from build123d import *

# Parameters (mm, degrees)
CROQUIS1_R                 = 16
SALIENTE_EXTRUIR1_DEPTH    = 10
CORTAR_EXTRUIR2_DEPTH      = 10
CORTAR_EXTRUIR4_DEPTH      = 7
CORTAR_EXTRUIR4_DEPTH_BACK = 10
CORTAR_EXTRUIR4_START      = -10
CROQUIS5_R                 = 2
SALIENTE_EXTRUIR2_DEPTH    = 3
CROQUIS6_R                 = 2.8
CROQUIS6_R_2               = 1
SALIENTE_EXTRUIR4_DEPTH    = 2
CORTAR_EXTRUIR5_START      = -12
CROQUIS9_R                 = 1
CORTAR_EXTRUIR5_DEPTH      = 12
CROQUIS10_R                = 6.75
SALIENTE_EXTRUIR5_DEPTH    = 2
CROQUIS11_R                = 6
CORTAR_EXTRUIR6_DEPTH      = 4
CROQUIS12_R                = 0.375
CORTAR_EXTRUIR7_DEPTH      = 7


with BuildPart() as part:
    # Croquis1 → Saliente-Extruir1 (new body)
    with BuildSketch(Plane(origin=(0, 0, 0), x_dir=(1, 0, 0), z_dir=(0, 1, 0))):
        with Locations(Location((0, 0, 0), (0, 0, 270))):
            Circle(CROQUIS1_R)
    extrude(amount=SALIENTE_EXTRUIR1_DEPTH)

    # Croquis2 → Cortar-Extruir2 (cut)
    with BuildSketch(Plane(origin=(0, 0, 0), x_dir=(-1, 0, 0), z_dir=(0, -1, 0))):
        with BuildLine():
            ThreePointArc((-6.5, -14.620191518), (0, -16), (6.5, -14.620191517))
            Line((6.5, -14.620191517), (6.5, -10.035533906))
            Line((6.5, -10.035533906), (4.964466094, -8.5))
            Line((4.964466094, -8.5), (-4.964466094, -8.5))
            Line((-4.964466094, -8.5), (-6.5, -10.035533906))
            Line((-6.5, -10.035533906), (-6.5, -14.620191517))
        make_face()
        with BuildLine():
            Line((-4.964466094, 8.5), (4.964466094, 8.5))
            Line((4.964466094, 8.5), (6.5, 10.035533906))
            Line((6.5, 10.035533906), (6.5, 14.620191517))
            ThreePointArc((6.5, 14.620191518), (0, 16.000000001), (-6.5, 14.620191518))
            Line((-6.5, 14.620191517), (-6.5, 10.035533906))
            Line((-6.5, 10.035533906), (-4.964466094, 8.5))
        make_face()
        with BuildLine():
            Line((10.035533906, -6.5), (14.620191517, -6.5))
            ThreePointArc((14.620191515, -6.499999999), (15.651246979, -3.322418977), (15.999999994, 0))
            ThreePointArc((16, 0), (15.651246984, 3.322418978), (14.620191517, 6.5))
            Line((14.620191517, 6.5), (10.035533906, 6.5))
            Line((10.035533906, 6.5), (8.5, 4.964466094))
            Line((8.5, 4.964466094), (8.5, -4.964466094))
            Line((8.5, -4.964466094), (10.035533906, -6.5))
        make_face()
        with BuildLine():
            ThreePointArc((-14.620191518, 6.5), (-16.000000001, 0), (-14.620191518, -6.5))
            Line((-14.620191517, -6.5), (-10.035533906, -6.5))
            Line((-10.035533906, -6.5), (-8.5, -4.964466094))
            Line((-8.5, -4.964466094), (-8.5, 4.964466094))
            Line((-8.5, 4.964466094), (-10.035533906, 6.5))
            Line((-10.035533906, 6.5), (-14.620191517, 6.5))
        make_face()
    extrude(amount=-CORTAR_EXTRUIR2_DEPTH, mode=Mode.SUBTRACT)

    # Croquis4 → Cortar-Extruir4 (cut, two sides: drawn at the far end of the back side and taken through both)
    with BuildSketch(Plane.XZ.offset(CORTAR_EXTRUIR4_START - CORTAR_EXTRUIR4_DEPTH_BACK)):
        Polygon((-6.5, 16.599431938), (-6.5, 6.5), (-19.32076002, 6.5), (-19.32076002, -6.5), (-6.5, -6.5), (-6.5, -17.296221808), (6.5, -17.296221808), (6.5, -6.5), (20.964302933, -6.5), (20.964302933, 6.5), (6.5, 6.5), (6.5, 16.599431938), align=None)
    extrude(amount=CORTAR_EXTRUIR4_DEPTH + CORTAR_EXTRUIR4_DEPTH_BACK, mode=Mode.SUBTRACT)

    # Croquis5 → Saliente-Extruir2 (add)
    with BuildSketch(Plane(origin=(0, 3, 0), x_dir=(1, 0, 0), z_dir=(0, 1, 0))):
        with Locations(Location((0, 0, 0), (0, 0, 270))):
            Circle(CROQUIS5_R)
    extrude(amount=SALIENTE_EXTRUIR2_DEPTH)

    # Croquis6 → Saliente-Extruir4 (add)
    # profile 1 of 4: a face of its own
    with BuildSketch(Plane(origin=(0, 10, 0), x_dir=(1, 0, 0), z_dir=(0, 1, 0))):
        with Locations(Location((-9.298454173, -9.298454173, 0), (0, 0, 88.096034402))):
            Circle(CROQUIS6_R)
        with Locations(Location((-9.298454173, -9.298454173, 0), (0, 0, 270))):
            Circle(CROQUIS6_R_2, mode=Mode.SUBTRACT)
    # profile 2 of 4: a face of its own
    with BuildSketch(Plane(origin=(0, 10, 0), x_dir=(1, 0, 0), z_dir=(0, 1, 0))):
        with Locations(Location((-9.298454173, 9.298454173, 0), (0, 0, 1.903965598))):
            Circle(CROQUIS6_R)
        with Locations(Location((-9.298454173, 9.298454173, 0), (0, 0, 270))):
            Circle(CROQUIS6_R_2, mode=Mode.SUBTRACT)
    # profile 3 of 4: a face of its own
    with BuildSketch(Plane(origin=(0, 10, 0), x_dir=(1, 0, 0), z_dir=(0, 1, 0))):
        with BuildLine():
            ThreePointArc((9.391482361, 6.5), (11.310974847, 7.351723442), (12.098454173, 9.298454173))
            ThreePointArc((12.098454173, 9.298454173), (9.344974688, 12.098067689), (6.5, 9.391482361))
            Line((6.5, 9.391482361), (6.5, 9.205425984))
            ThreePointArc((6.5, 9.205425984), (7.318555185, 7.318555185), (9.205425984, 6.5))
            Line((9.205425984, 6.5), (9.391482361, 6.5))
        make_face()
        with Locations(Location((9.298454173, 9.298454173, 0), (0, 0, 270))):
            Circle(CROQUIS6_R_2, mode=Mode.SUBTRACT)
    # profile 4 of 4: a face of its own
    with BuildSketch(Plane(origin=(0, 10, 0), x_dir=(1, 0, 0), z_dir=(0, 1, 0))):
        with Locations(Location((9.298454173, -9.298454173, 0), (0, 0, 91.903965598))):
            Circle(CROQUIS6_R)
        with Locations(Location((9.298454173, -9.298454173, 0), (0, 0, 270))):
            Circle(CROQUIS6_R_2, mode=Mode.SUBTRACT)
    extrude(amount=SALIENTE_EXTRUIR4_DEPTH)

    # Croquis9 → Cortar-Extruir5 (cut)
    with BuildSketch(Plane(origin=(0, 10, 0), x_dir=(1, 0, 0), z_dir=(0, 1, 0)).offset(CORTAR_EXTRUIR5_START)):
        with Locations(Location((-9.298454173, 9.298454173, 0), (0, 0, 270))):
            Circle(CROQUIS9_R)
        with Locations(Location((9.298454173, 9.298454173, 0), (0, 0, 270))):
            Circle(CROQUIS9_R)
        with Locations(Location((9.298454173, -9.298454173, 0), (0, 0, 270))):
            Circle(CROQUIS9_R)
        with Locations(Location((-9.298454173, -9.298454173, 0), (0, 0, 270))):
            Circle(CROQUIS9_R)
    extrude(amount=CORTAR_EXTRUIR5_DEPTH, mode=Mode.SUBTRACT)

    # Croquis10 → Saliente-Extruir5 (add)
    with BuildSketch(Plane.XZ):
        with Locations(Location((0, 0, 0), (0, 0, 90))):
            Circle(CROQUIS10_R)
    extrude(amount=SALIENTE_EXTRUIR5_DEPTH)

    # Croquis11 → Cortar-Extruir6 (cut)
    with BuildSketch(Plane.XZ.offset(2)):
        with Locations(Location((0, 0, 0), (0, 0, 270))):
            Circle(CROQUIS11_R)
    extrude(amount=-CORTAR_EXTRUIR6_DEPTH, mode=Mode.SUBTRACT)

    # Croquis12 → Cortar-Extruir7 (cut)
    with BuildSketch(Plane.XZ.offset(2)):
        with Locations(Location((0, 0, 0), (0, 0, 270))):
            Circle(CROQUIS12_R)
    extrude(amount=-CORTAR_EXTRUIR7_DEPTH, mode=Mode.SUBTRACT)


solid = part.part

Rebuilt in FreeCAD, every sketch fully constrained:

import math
import FreeCAD as App
import Part
import Sketcher
from FreeCAD import Vector


def add_polygon(sketch, points):
    """Adds a closed chain of lines whose ends are joined by coincident constraints."""
    first, n = sketch.GeometryCount, len(points)
    for a, b in zip(points, points[1:] + points[:1]):
        sketch.addGeometry(Part.LineSegment(App.Vector(*a, 0), App.Vector(*b, 0)), False)
    for i in range(n):
        sketch.addConstraint(Sketcher.Constraint("Coincident", first + i, 2, first + (i + 1) % n, 1))

doc = App.newDocument("Part")
body = doc.addObject("PartDesign::Body", "Body")

sketch1 = body.newObject("Sketcher::SketchObject", "Sketch")
sketch1.AttachmentSupport = (doc.getObject("XZ_Plane"), [""])
sketch1.MapMode = "FlatFace"
sketch1.addGeometry(Part.Circle(Vector(0, 0, 0), Vector(0, 0, 1), 16), False)
sketch1.addConstraint([
    Sketcher.Constraint("Coincident", 0, 3, -1, 1),
    Sketcher.Constraint("Diameter", 0, 32.0),
])
pad1 = body.newObject("PartDesign::Pad", "Pad")
pad1.Profile = sketch1
pad1.Length = 10
pad1.Reversed = True

sketch2 = body.newObject("Sketcher::SketchObject", "Sketch001")
sketch2.AttachmentSupport = (doc.getObject("XZ_Plane"), [""])
sketch2.MapMode = "FlatFace"
sketch2.addGeometry([
    Part.ArcOfCircle(Part.Circle(Vector(0, 0, 0), Vector(0, 0, 1), 16), math.radians(66.030518), math.radians(113.969482)),
    Part.LineSegment(Vector(-6.5, 14.620192, 0), Vector(-6.5, 10.035534, 0)),
    Part.LineSegment(Vector(-6.5, 10.035534, 0), Vector(-4.964466, 8.5, 0)),
    Part.LineSegment(Vector(-4.964466, 8.5, 0), Vector(4.964466, 8.5, 0)),
    Part.LineSegment(Vector(4.964466, 8.5, 0), Vector(6.5, 10.035534, 0)),
    Part.LineSegment(Vector(6.5, 10.035534, 0), Vector(6.5, 14.620192, 0)),
    Part.LineSegment(Vector(4.964466, -8.5, 0), Vector(-4.964466, -8.5, 0)),
    Part.LineSegment(Vector(-4.964466, -8.5, 0), Vector(-6.5, -10.035534, 0)),
    Part.LineSegment(Vector(-6.5, -10.035534, 0), Vector(-6.5, -14.620192, 0)),
    Part.ArcOfCircle(Part.Circle(Vector(0, 0, 0), Vector(0, 0, 1), 16), math.radians(-113.969482), math.radians(-66.030518)),
    Part.LineSegment(Vector(6.5, -14.620192, 0), Vector(6.5, -10.035534, 0)),
    Part.LineSegment(Vector(6.5, -10.035534, 0), Vector(4.964466, -8.5, 0)),
    Part.LineSegment(Vector(-10.035534, 6.5, 0), Vector(-14.620192, 6.5, 0)),
    Part.ArcOfCircle(Part.Circle(Vector(0, 0, 0), Vector(0, 0, 1), 16), math.radians(156.030518), math.radians(180)),
    Part.ArcOfCircle(Part.Circle(Vector(0, 0, 0), Vector(0, 0, 1), 16), math.radians(180), math.radians(203.969482)),
    Part.LineSegment(Vector(-14.620192, -6.5, 0), Vector(-10.035534, -6.5, 0)),
    Part.LineSegment(Vector(-10.035534, -6.5, 0), Vector(-8.5, -4.964466, 0)),
    Part.LineSegment(Vector(-8.5, -4.964466, 0), Vector(-8.5, 4.964466, 0)),
    Part.LineSegment(Vector(-8.5, 4.964466, 0), Vector(-10.035534, 6.5, 0)),
    Part.ArcOfCircle(Part.Circle(Vector(0, 0, 0), Vector(0, 0, 1), 16), math.radians(-23.969482), math.radians(23.969482)),
    Part.LineSegment(Vector(14.620192, 6.5, 0), Vector(10.035534, 6.5, 0)),
    Part.LineSegment(Vector(10.035534, 6.5, 0), Vector(8.5, 4.964466, 0)),
    Part.LineSegment(Vector(8.5, 4.964466, 0), Vector(8.5, -4.964466, 0)),
    Part.LineSegment(Vector(8.5, -4.964466, 0), Vector(10.035534, -6.5, 0)),
    Part.LineSegment(Vector(10.035534, -6.5, 0), Vector(14.620192, -6.5, 0)),
], False)
sketch2.addConstraint([
    Sketcher.Constraint("Coincident", 0, 2, 1, 1),
    Sketcher.Constraint("Coincident", 1, 2, 2, 1),
    Sketcher.Constraint("Coincident", 2, 2, 3, 1),
    Sketcher.Constraint("Coincident", 3, 2, 4, 1),
    Sketcher.Constraint("Coincident", 4, 2, 5, 1),
    Sketcher.Constraint("Coincident", 5, 2, 0, 1),
    Sketcher.Constraint("Coincident", 6, 2, 7, 1),
    Sketcher.Constraint("Coincident", 7, 2, 8, 1),
    Sketcher.Constraint("Coincident", 8, 2, 9, 1),
    Sketcher.Constraint("Coincident", 9, 2, 10, 1),
    Sketcher.Constraint("Coincident", 10, 2, 11, 1),
    Sketcher.Constraint("Coincident", 11, 2, 6, 1),
    Sketcher.Constraint("Coincident", 12, 2, 13, 1),
    Sketcher.Constraint("Tangent", 13, 2, 14, 1),
    Sketcher.Constraint("Coincident", 14, 2, 15, 1),
    Sketcher.Constraint("Coincident", 15, 2, 16, 1),
    Sketcher.Constraint("Coincident", 16, 2, 17, 1),
    Sketcher.Constraint("Coincident", 17, 2, 18, 1),
    Sketcher.Constraint("Coincident", 18, 2, 12, 1),
    Sketcher.Constraint("Coincident", 19, 2, 20, 1),
    Sketcher.Constraint("Coincident", 20, 2, 21, 1),
    Sketcher.Constraint("Coincident", 21, 2, 22, 1),
    Sketcher.Constraint("Coincident", 22, 2, 23, 1),
    Sketcher.Constraint("Coincident", 23, 2, 24, 1),
    Sketcher.Constraint("Coincident", 24, 2, 19, 1),
    Sketcher.Constraint("Vertical", 1),
    Sketcher.Constraint("Horizontal", 3),
    Sketcher.Constraint("Vertical", 5),
    Sketcher.Constraint("Horizontal", 6),
    Sketcher.Constraint("Vertical", 8),
    Sketcher.Constraint("Vertical", 10),
    Sketcher.Constraint("Horizontal", 12),
    Sketcher.Constraint("Horizontal", 15),
    Sketcher.Constraint("Vertical", 17),
    Sketcher.Constraint("Horizontal", 20),
    Sketcher.Constraint("Vertical", 22),
    Sketcher.Constraint("Horizontal", 24),
    Sketcher.Constraint("Coincident", 0, 3, -1, 1),
    Sketcher.Constraint("Coincident", 9, 3, -1, 1),
    Sketcher.Constraint("Coincident", 13, 3, -1, 1),
    Sketcher.Constraint("Coincident", 19, 3, -1, 1),
    Sketcher.Constraint("Equal", 0, 9),
    Sketcher.Constraint("Equal", 9, 13),
    Sketcher.Constraint("Equal", 13, 14),
    Sketcher.Constraint("Equal", 14, 19),
    Sketcher.Constraint("Symmetric", 3, 2, 6, 2, -1, 1),
    Sketcher.Constraint("Symmetric", 4, 2, 7, 2, -1, 1),
    Sketcher.Constraint("Symmetric", 1, 2, 10, 2, -1, 1),
    Sketcher.Constraint("Symmetric", 15, 2, 20, 2, -1, 1),
    Sketcher.Constraint("Symmetric", 16, 2, 21, 2, -1, 1),
    Sketcher.Constraint("Symmetric", 18, 2, 23, 2, -1, 1),
    Sketcher.Constraint("Symmetric", 1, 2, 4, 2, -2),
    Sketcher.Constraint("Symmetric", 18, 2, 20, 2, -2),
    Sketcher.Constraint("PointOnObject", 13, 2, -1),
    Sketcher.Constraint("Perpendicular", 2, 4),
    Sketcher.Constraint("Perpendicular", 7, 11),
    Sketcher.Constraint("Perpendicular", 11, 16),
    Sketcher.Constraint("Perpendicular", 16, 18),
    Sketcher.Constraint("Perpendicular", 21, 23),
    Sketcher.Constraint("Horizontal", 17, 2, 21, 2),
    Sketcher.Constraint("Equal", 24, 1),
    Sketcher.Constraint("Equal", 6, 17),
    Sketcher.Constraint("Equal", 11, 16),
    Sketcher.Constraint("Radius", 0, 16.0),
    Sketcher.Constraint("DistanceX", 0, 2, 5, 2, 13.0),
    Sketcher.Constraint("DistanceY", 12, 2, 2, 2, 2.0),
    Sketcher.Constraint("DistanceX", 3, 1, 3, 2, 9.928932),
])
pocket1 = body.newObject("PartDesign::Pocket", "Pocket")
pocket1.Profile = sketch2
pocket1.Length = 10

sketch3 = body.newObject("Sketcher::SketchObject", "Sketch002")
sketch3.AttachmentSupport = (doc.getObject("XZ_Plane"), [""])
sketch3.MapMode = "FlatFace"
sketch3.AttachmentOffset = App.Placement(Vector(0, 0, -10), App.Rotation())
add_polygon(sketch3, [(-6.5, 16.599432), (-6.5, 6.5), (-19.32076, 6.5), (-19.32076, -6.5), (-6.5, -6.5), (-6.5, -17.296222), (6.5, -17.296222), (6.5, -6.5), (20.964303, -6.5), (20.964303, 6.5), (6.5, 6.5), (6.5, 16.599432)])
sketch3.addConstraint([
    Sketcher.Constraint("Vertical", 0),
    Sketcher.Constraint("Horizontal", 1),
    Sketcher.Constraint("Vertical", 2),
    Sketcher.Constraint("Horizontal", 3),
    Sketcher.Constraint("Vertical", 4),
    Sketcher.Constraint("Horizontal", 5),
    Sketcher.Constraint("Vertical", 6),
    Sketcher.Constraint("Horizontal", 7),
    Sketcher.Constraint("Vertical", 8),
    Sketcher.Constraint("Horizontal", 9),
    Sketcher.Constraint("Vertical", 10),
    Sketcher.Constraint("Horizontal", 11),
    Sketcher.Constraint("Symmetric", 0, 2, 6, 2, -1, 1),
    Sketcher.Constraint("Symmetric", 3, 2, 9, 2, -1, 1),
    Sketcher.Constraint("Symmetric", 3, 2, 6, 2, -2),
    Sketcher.Constraint("Equal", 11, 2),
    Sketcher.Constraint("DistanceX", 5, 1, 5, 2, 13.0),
    Sketcher.Constraint("DistanceX", 1, 2, 1, 1, 12.82076),
    Sketcher.Constraint("DistanceY", 0, 2, 0, 1, 10.099432),
    Sketcher.Constraint("DistanceY", 4, 2, 4, 1, 10.796222),
    Sketcher.Constraint("DistanceX", 7, 1, 7, 2, 14.464303),
])
pocket2 = body.newObject("PartDesign::Pocket", "Pocket001")
pocket2.Profile = sketch3
pocket2.Type = "TwoLengths"
pocket2.Length = 7
pocket2.Length2 = 10
pocket2.Reversed = True

sketch4 = body.newObject("Sketcher::SketchObject", "Sketch003")
sketch4.AttachmentSupport = (doc.getObject("XZ_Plane"), [""])
sketch4.MapMode = "FlatFace"
sketch4.AttachmentOffset = App.Placement(Vector(0, 0, -3), App.Rotation())
sketch4.addGeometry(Part.Circle(Vector(0, 0, 0), Vector(0, 0, 1), 2), False)
sketch4.addConstraint([
    Sketcher.Constraint("Coincident", 0, 3, -1, 1),
    Sketcher.Constraint("Diameter", 0, 4.0),
])
pad2 = body.newObject("PartDesign::Pad", "Pad001")
pad2.Profile = sketch4
pad2.Length = 3
pad2.Reversed = True

sketch5 = body.newObject("Sketcher::SketchObject", "Sketch004")
sketch5.AttachmentSupport = (doc.getObject("XZ_Plane"), [""])
sketch5.MapMode = "FlatFace"
sketch5.AttachmentOffset = App.Placement(Vector(0, 0, -10), App.Rotation())
sketch5.addGeometry([
    Part.Circle(Vector(-9.298454, 9.298454, 0), Vector(0, 0, 1), 2.8),
    Part.Circle(Vector(-9.298454, 9.298454, 0), Vector(0, 0, 1), 1),
    Part.Circle(Vector(-9.298454, -9.298454, 0), Vector(0, 0, 1), 2.8),
    Part.Circle(Vector(-9.298454, -9.298454, 0), Vector(0, 0, 1), 1),
    Part.ArcOfCircle(Part.Circle(Vector(9.298454, -9.298454, 0), Vector(0, 0, 1), 2.8), math.radians(0), math.radians(88.096034)),
    Part.ArcOfCircle(Part.Circle(Vector(9.298454, -9.298454, 0), Vector(0, 0, 1), 2.8), math.radians(-178.096034), math.radians(0)),
    Part.LineSegment(Vector(6.5, -9.391482, 0), Vector(6.5, -9.205426, 0)),
    Part.ArcOfCircle(Part.Circle(Vector(9.298454, -9.298454, 0), Vector(0, 0, 1), 2.8), math.radians(91.903966), math.radians(178.096034)),
    Part.LineSegment(Vector(9.205426, -6.5, 0), Vector(9.391482, -6.5, 0)),
    Part.Circle(Vector(9.298454, -9.298454, 0), Vector(0, 0, 1), 1),
    Part.Circle(Vector(9.298454, 9.298454, 0), Vector(0, 0, 1), 2.8),
    Part.Circle(Vector(9.298454, 9.298454, 0), Vector(0, 0, 1), 1),
], False)
sketch5.addConstraint([
    Sketcher.Constraint("Tangent", 4, 1, 5, 2),
    Sketcher.Constraint("Coincident", 5, 1, 6, 1),
    Sketcher.Constraint("Coincident", 6, 2, 7, 2),
    Sketcher.Constraint("Coincident", 7, 1, 8, 1),
    Sketcher.Constraint("Coincident", 8, 2, 4, 2),
    Sketcher.Constraint("Vertical", 6),
    Sketcher.Constraint("Horizontal", 8),
    Sketcher.Constraint("Coincident", 1, 3, 0, 3),
    Sketcher.Constraint("Coincident", 3, 3, 2, 3),
    Sketcher.Constraint("Coincident", 7, 3, 4, 3),
    Sketcher.Constraint("Coincident", 9, 3, 4, 3),
    Sketcher.Constraint("Coincident", 11, 3, 10, 3),
    Sketcher.Constraint("Equal", 0, 2),
    Sketcher.Constraint("Equal", 1, 3),
    Sketcher.Constraint("Equal", 2, 4),
    Sketcher.Constraint("Equal", 4, 5),
    Sketcher.Constraint("Equal", 5, 7),
    Sketcher.Constraint("Equal", 3, 9),
    Sketcher.Constraint("Equal", 7, 10),
    Sketcher.Constraint("Equal", 9, 11),
    Sketcher.Constraint("Symmetric", 0, 3, 4, 3, -1, 1),
    Sketcher.Constraint("Symmetric", 2, 3, 10, 3, -1, 1),
    Sketcher.Constraint("Symmetric", 2, 3, 4, 3, -2),
    Sketcher.Constraint("Horizontal", 9, 3, 4, 1),
    Sketcher.Constraint("Equal", 8, 6),
    Sketcher.Constraint("Diameter", 1, 2.0),
    Sketcher.Constraint("Diameter", 0, 5.6),
    Sketcher.Constraint("DistanceX", -1, 1, 5, 1, 6.5),
    Sketcher.Constraint("DistanceY", 7, 1, -1, 1, 6.5),
    Sketcher.Constraint("DistanceX", 8, 1, 8, 2, 0.186056),
])
pad3 = body.newObject("PartDesign::Pad", "Pad002")
pad3.Profile = sketch5
pad3.Length = 2
pad3.Reversed = True

sketch6 = body.newObject("Sketcher::SketchObject", "Sketch005")
sketch6.AttachmentSupport = (doc.getObject("XZ_Plane"), [""])
sketch6.MapMode = "FlatFace"
sketch6.AttachmentOffset = App.Placement(Vector(0, 0, 2), App.Rotation())
sketch6.addGeometry([
    Part.Circle(Vector(-9.298454, -9.298454, 0), Vector(0, 0, 1), 1),
    Part.Circle(Vector(9.298454, -9.298454, 0), Vector(0, 0, 1), 1),
    Part.Circle(Vector(9.298454, 9.298454, 0), Vector(0, 0, 1), 1),
    Part.Circle(Vector(-9.298454, 9.298454, 0), Vector(0, 0, 1), 1),
], False)
sketch6.addConstraint([
    Sketcher.Constraint("Equal", 0, 1),
    Sketcher.Constraint("Equal", 1, 2),
    Sketcher.Constraint("Equal", 2, 3),
    Sketcher.Constraint("Symmetric", 0, 3, 2, 3, -1, 1),
    Sketcher.Constraint("Symmetric", 1, 3, 3, 3, -1, 1),
    Sketcher.Constraint("Symmetric", 0, 3, 1, 3, -2),
    Sketcher.Constraint("Diameter", 0, 2.0),
    Sketcher.Constraint("DistanceX", 0, 3, 1, 3, 18.596908),
    Sketcher.Constraint("DistanceY", 1, 3, 2, 3, 18.596908),
])
pocket3 = body.newObject("PartDesign::Pocket", "Pocket002")
pocket3.Profile = sketch6
pocket3.Length = 12

sketch7 = body.newObject("Sketcher::SketchObject", "Sketch006")
sketch7.AttachmentSupport = (doc.getObject("XZ_Plane"), [""])
sketch7.MapMode = "FlatFace"
sketch7.addGeometry(Part.Circle(Vector(0, 0, 0), Vector(0, 0, 1), 6.75), False)
sketch7.addConstraint([
    Sketcher.Constraint("Coincident", 0, 3, -1, 1),
    Sketcher.Constraint("Diameter", 0, 13.5),
])
pad4 = body.newObject("PartDesign::Pad", "Pad003")
pad4.Profile = sketch7
pad4.Length = 2

sketch8 = body.newObject("Sketcher::SketchObject", "Sketch007")
sketch8.AttachmentSupport = (doc.getObject("XZ_Plane"), [""])
sketch8.MapMode = "FlatFace"
sketch8.AttachmentOffset = App.Placement(Vector(0, 0, 2), App.Rotation())
sketch8.addGeometry(Part.Circle(Vector(0, 0, 0), Vector(0, 0, 1), 6), False)
sketch8.addConstraint([
    Sketcher.Constraint("Coincident", 0, 3, -1, 1),
    Sketcher.Constraint("Diameter", 0, 12.0),
])
pocket4 = body.newObject("PartDesign::Pocket", "Pocket003")
pocket4.Profile = sketch8
pocket4.Length = 4

sketch9 = body.newObject("Sketcher::SketchObject", "Sketch008")
sketch9.AttachmentSupport = (doc.getObject("XZ_Plane"), [""])
sketch9.MapMode = "FlatFace"
sketch9.AttachmentOffset = App.Placement(Vector(0, 0, 2), App.Rotation())
sketch9.addGeometry(Part.Circle(Vector(0, 0, 0), Vector(0, 0, 1), 0.375), False)
sketch9.addConstraint([
    Sketcher.Constraint("Coincident", 0, 3, -1, 1),
    Sketcher.Constraint("Diameter", 0, 0.75),
])
pocket5 = body.newObject("PartDesign::Pocket", "Pocket004")
pocket5.Profile = sketch9
pocket5.Length = 7

doc.recompute()
